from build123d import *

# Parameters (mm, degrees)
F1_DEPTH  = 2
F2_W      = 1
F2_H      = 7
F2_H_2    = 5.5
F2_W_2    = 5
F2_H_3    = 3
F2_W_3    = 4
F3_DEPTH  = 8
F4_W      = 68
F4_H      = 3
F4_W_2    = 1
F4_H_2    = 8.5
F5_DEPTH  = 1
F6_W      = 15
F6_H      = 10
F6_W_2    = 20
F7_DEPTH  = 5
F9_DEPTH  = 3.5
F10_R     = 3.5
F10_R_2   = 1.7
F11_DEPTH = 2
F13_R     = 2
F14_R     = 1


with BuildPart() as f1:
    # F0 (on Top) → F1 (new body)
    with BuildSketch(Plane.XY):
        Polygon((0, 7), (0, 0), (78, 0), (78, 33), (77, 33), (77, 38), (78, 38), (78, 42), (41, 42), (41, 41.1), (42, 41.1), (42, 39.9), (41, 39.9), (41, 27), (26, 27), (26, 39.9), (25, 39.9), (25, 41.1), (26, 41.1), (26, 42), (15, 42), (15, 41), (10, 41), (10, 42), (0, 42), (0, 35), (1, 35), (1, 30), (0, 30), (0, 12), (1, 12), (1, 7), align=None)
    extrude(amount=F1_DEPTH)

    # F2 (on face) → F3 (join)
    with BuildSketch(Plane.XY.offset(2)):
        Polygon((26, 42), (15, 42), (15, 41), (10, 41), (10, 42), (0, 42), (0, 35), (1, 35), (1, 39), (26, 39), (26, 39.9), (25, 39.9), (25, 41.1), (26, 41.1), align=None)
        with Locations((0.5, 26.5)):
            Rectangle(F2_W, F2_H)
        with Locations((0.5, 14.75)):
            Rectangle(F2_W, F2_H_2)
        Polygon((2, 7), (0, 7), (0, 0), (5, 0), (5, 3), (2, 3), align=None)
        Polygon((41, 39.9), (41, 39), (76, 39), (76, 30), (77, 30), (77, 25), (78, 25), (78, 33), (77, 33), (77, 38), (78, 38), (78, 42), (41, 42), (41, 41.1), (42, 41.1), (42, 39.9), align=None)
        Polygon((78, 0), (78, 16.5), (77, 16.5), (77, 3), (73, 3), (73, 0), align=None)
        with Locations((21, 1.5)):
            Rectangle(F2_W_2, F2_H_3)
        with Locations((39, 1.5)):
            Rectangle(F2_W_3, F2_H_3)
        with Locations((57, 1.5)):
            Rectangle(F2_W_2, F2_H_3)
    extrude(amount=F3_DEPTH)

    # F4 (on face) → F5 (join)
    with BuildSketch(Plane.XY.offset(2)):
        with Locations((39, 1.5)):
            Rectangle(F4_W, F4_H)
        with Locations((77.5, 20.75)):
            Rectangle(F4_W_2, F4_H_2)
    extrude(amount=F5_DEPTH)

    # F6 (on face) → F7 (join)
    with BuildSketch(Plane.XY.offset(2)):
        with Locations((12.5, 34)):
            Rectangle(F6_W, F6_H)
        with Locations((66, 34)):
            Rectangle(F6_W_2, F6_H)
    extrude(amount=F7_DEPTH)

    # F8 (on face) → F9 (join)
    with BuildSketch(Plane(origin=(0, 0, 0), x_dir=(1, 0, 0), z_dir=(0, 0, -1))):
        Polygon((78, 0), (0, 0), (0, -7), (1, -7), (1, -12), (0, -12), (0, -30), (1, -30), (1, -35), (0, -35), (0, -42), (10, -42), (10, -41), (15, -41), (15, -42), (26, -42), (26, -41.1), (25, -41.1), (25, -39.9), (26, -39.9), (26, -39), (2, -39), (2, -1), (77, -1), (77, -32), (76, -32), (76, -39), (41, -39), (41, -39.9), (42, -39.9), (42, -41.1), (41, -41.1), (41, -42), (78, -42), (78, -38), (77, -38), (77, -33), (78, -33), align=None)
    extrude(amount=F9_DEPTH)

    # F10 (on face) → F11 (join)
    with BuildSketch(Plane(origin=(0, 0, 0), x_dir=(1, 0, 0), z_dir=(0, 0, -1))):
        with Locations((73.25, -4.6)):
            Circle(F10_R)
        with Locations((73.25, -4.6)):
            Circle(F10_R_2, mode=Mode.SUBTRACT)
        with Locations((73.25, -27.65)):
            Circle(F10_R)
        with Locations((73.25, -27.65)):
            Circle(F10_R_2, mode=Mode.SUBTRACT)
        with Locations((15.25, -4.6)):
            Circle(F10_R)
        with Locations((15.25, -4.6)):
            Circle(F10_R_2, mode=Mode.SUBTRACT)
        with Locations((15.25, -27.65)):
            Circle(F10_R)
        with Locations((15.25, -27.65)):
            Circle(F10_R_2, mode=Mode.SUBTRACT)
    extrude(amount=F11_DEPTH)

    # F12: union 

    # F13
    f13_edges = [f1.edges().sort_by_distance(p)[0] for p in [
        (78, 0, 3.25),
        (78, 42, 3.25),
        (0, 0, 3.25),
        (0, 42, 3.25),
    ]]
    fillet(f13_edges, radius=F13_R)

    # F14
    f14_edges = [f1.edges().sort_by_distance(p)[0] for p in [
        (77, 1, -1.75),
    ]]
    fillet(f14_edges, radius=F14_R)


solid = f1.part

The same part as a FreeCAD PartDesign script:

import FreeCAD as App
import Part
import Sketcher
from FreeCAD import Vector


def edges_at(feature, points):
    """Names of the edges that pass closest to the given points."""
    edges = feature.Shape.Edges
    near = lambda p: min(range(len(edges)), key=lambda i: edges[i].distToShape(Part.Vertex(*p))[0])
    return sorted({f"Edge{near(p) + 1}" for p in points})

doc = App.newDocument("Part")
body = doc.addObject("PartDesign::Body", "Body")

sketch1 = body.newObject("Sketcher::SketchObject", "Sketch")
sketch1.AttachmentSupport = (doc.getObject("XY_Plane"), [""])
sketch1.MapMode = "FlatFace"
sketch1.addGeometry([
    Part.LineSegment(Vector(0, 7, 0), Vector(0, 0, 0)),
    Part.LineSegment(Vector(0, 0, 0), Vector(78, 0, 0)),
    Part.LineSegment(Vector(78, 0, 0), Vector(78, 33, 0)),
    Part.LineSegment(Vector(78, 33, 0), Vector(77, 33, 0)),
    Part.LineSegment(Vector(77, 33, 0), Vector(77, 38, 0)),
    Part.LineSegment(Vector(77, 38, 0), Vector(78, 38, 0)),
    Part.LineSegment(Vector(78, 38, 0), Vector(78, 42, 0)),
    Part.LineSegment(Vector(78, 42, 0), Vector(41, 42, 0)),
    Part.LineSegment(Vector(41, 42, 0), Vector(41, 41.1, 0)),
    Part.LineSegment(Vector(41, 41.1, 0), Vector(42, 41.1, 0)),
    Part.LineSegment(Vector(42, 41.1, 0), Vector(42, 39.9, 0)),
    Part.LineSegment(Vector(42, 39.9, 0), Vector(41, 39.9, 0)),
    Part.LineSegment(Vector(41, 39.9, 0), Vector(41, 27, 0)),
    Part.LineSegment(Vector(41, 27, 0), Vector(26, 27, 0)),
    Part.LineSegment(Vector(26, 27, 0), Vector(26, 39.9, 0)),
    Part.LineSegment(Vector(26, 39.9, 0), Vector(25, 39.9, 0)),
    Part.LineSegment(Vector(25, 39.9, 0), Vector(25, 41.1, 0)),
    Part.LineSegment(Vector(25, 41.1, 0), Vector(26, 41.1, 0)),
    Part.LineSegment(Vector(26, 41.1, 0), Vector(26, 42, 0)),
    Part.LineSegment(Vector(26, 42, 0), Vector(15, 42, 0)),
    Part.LineSegment(Vector(15, 42, 0), Vector(15, 41, 0)),
    Part.LineSegment(Vector(15, 41, 0), Vector(10, 41, 0)),
    Part.LineSegment(Vector(10, 41, 0), Vector(10, 42, 0)),
    Part.LineSegment(Vector(10, 42, 0), Vector(0, 42, 0)),
    Part.LineSegment(Vector(0, 42, 0), Vector(0, 35, 0)),
    Part.LineSegment(Vector(0, 35, 0), Vector(1, 35, 0)),
    Part.LineSegment(Vector(1, 35, 0), Vector(1, 30, 0)),
    Part.LineSegment(Vector(1, 30, 0), Vector(0, 30, 0)),
    Part.LineSegment(Vector(0, 30, 0), Vector(0, 12, 0)),
    Part.LineSegment(Vector(0, 12, 0), Vector(1, 12, 0)),
    Part.LineSegment(Vector(1, 12, 0), Vector(1, 7, 0)),
    Part.LineSegment(Vector(1, 7, 0), Vector(0, 7, 0)),
], False)
sketch1.addConstraint([
    Sketcher.Constraint("Coincident", 0, 2, 1, 1),
    Sketcher.Constraint("Coincident", 1, 2, 2, 1),
    Sketcher.Constraint("Coincident", 2, 2, 3, 1),
    Sketcher.Constraint("Coincident", 3, 2, 4, 1),
    Sketcher.Constraint("Coincident", 4, 2, 5, 1),
    Sketcher.Constraint("Coincident", 5, 2, 6, 1),
    Sketcher.Constraint("Coincident", 6, 2, 7, 1),
    Sketcher.Constraint("Coincident", 7, 2, 8, 1),
    Sketcher.Constraint("Coincident", 8, 2, 9, 1),
    Sketcher.Constraint("Coincident", 9, 2, 10, 1),
    Sketcher.Constraint("Coincident", 10, 2, 11, 1),
    Sketcher.Constraint("Coincident", 11, 2, 12, 1),
    Sketcher.Constraint("Coincident", 12, 2, 13, 1),
    Sketcher.Constraint("Coincident", 13, 2, 14, 1),
    Sketcher.Constraint("Coincident", 14, 2, 15, 1),
    Sketcher.Constraint("Coincident", 15, 2, 16, 1),
    Sketcher.Constraint("Coincident", 16, 2, 17, 1),
    Sketcher.Constraint("Coincident", 17, 2, 18, 1),
    Sketcher.Constraint("Coincident", 18, 2, 19, 1),
    Sketcher.Constraint("Coincident", 19, 2, 20, 1),
    Sketcher.Constraint("Coincident", 20, 2, 21, 1),
    Sketcher.Constraint("Coincident", 21, 2, 22, 1),
    Sketcher.Constraint("Coincident", 22, 2, 23, 1),
    Sketcher.Constraint("Coincident", 23, 2, 24, 1),
    Sketcher.Constraint("Coincident", 24, 2, 25, 1),
    Sketcher.Constraint("Coincident", 25, 2, 26, 1),
    Sketcher.Constraint("Coincident", 26, 2, 27, 1),
    Sketcher.Constraint("Coincident", 27, 2, 28, 1),
    Sketcher.Constraint("Coincident", 28, 2, 29, 1),
    Sketcher.Constraint("Coincident", 29, 2, 30, 1),
    Sketcher.Constraint("Coincident", 30, 2, 31, 1),
    Sketcher.Constraint("Coincident", 31, 2, 0, 1),
    Sketcher.Constraint("Vertical", 0),
    Sketcher.Constraint("Horizontal", 1),
    Sketcher.Constraint("Vertical", 2),
    Sketcher.Constraint("Horizontal", 3),
    Sketcher.Constraint("Vertical", 4),
    Sketcher.Constraint("Horizontal", 5),
    Sketcher.Constraint("Vertical", 6),
    Sketcher.Constraint("Horizontal", 7),
    Sketcher.Constraint("Vertical", 8),
    Sketcher.Constraint("Horizontal", 9),
    Sketcher.Constraint("Vertical", 10),
    Sketcher.Constraint("Horizontal", 11),
    Sketcher.Constraint("Vertical", 12),
    Sketcher.Constraint("Horizontal", 13),
    Sketcher.Constraint("Vertical", 14),
    Sketcher.Constraint("Horizontal", 15),
    Sketcher.Constraint("Vertical", 16),
    Sketcher.Constraint("Horizontal", 17),
    Sketcher.Constraint("Vertical", 18),
    Sketcher.Constraint("Horizontal", 19),
    Sketcher.Constraint("Vertical", 20),
    Sketcher.Constraint("Horizontal", 21),
    Sketcher.Constraint("Vertical", 22),
    Sketcher.Constraint("Horizontal", 23),
    Sketcher.Constraint("Vertical", 24),
    Sketcher.Constraint("Horizontal", 25),
    Sketcher.Constraint("Vertical", 26),
    Sketcher.Constraint("Horizontal", 27),
    Sketcher.Constraint("Vertical", 28),
    Sketcher.Constraint("Horizontal", 29),
    Sketcher.Constraint("Vertical", 30),
    Sketcher.Constraint("Horizontal", 31),
    Sketcher.Constraint("Coincident", 0, 2, -1, 1),
    Sketcher.Constraint("PointOnObject", 23, 2, -2),
    Sketcher.Constraint("PointOnObject", 27, 2, -2),
    Sketcher.Constraint("Horizontal", 11, 2, 14, 2),
    Sketcher.Constraint("Horizontal", 9, 2, 16, 2),
    Sketcher.Constraint("Horizontal", 7, 2, 18, 2),
    Sketcher.Constraint("Horizontal", 19, 2, 22, 2),
    Sketcher.Constraint("Vertical", 2, 2, 5, 2),
    Sketcher.Constraint("Vertical", 8, 2, 11, 2),
    Sketcher.Constraint("Vertical", 14, 2, 17, 2),
    Sketcher.Constraint("Vertical", 26, 2, 29, 2),
    Sketcher.Constraint("Equal", 5, 9),
    Sketcher.Constraint("Equal", 11, 15),
    Sketcher.Constraint("Equal", 17, 25),
    Sketcher.Constraint("Equal", 21, 4),
    Sketcher.Constraint("Equal", 31, 20),
    Sketcher.Constraint("Equal", 0, 24),
    Sketcher.Constraint("Equal", 4, 26),
    Sketcher.Constraint("Equal", 26, 30),
    Sketcher.Constraint("DistanceX", 1, 1, 1, 2, 78.0),
    Sketcher.Constraint("DistanceX", 3, 2, 3, 1, 1.0),
    Sketcher.Constraint("DistanceX", 7, 2, 7, 1, 37.0),
    Sketcher.Constraint("DistanceX", 13, 2, 13, 1, 15.0),
    Sketcher.Constraint("DistanceX", 19, 2, 19, 1, 11.0),
    Sketcher.Constraint("DistanceX", 21, 2, 21, 1, 5.0),
    Sketcher.Constraint("DistanceY", 0, 2, 0, 1, 7.0),
    Sketcher.Constraint("DistanceY", 2, 1, 2, 2, 33.0),
    Sketcher.Constraint("DistanceY", 6, 1, 6, 2, 4.0),
    Sketcher.Constraint("DistanceY", 8, 2, 8, 1, 0.9),
    Sketcher.Constraint("DistanceY", 10, 2, 10, 1, 1.2),
    Sketcher.Constraint("DistanceY", 12, 2, 12, 1, 12.9),
])
pad1 = body.newObject("PartDesign::Pad", "Pad")
pad1.Profile = sketch1
pad1.Length = 2

sketch2 = body.newObject("Sketcher::SketchObject", "Sketch001")
sketch2.AttachmentSupport = (doc.getObject("XY_Plane"), [""])
sketch2.MapMode = "FlatFace"
sketch2.AttachmentOffset = App.Placement(Vector(0, 0, 2), App.Rotation())
sketch2.addGeometry([
    Part.LineSegment(Vector(26, 42, 0), Vector(15, 42, 0)),
    Part.LineSegment(Vector(15, 42, 0), Vector(15, 41, 0)),
    Part.LineSegment(Vector(15, 41, 0), Vector(10, 41, 0)),
    Part.LineSegment(Vector(10, 41, 0), Vector(10, 42, 0)),
    Part.LineSegment(Vector(10, 42, 0), Vector(0, 42, 0)),
    Part.LineSegment(Vector(0, 42, 0), Vector(0, 35, 0)),
    Part.LineSegment(Vector(0, 35, 0), Vector(1, 35, 0)),
    Part.LineSegment(Vector(1, 35, 0), Vector(1, 39, 0)),
    Part.LineSegment(Vector(1, 39, 0), Vector(26, 39, 0)),
    Part.LineSegment(Vector(26, 39, 0), Vector(26, 39.9, 0)),
    Part.LineSegment(Vector(26, 39.9, 0), Vector(25, 39.9, 0)),
    Part.LineSegment(Vector(25, 39.9, 0), Vector(25, 41.1, 0)),
    Part.LineSegment(Vector(25, 41.1, 0), Vector(26, 41.1, 0)),
    Part.LineSegment(Vector(26, 41.1, 0), Vector(26, 42, 0)),
    Part.LineSegment(Vector(0, 30, 0), Vector(0, 23, 0)),
    Part.LineSegment(Vector(0, 23, 0), Vector(1, 23, 0)),
    Part.LineSegment(Vector(1, 23, 0), Vector(1, 30, 0)),
    Part.LineSegment(Vector(1, 30, 0), Vector(0, 30, 0)),
    Part.LineSegment(Vector(0, 17.5, 0), Vector(0, 12, 0)),
    Part.LineSegment(Vector(0, 12, 0), Vector(1, 12, 0)),
    Part.LineSegment(Vector(1, 12, 0), Vector(1, 17.5, 0)),
    Part.LineSegment(Vector(1, 17.5, 0), Vector(0, 17.5, 0)),
    Part.LineSegment(Vector(2, 7, 0), Vector(0, 7, 0)),
    Part.LineSegment(Vector(0, 7, 0), Vector(0, 0, 0)),
    Part.LineSegment(Vector(0, 0, 0), Vector(5, 0, 0)),
    Part.LineSegment(Vector(5, 0, 0), Vector(5, 3, 0)),
    Part.LineSegment(Vector(5, 3, 0), Vector(2, 3, 0)),
    Part.LineSegment(Vector(2, 3, 0), Vector(2, 7, 0)),
    Part.LineSegment(Vector(41, 39.9, 0), Vector(41, 39, 0)),
    Part.LineSegment(Vector(41, 39, 0), Vector(76, 39, 0)),
    Part.LineSegment(Vector(76, 39, 0), Vector(76, 30, 0)),
    Part.LineSegment(Vector(76, 30, 0), Vector(77, 30, 0)),
    Part.LineSegment(Vector(77, 30, 0), Vector(77, 25, 0)),
    Part.LineSegment(Vector(77, 25, 0), Vector(78, 25, 0)),
    Part.LineSegment(Vector(78, 25, 0), Vector(78, 33, 0)),
    Part.LineSegment(Vector(78, 33, 0), Vector(77, 33, 0)),
    Part.LineSegment(Vector(77, 33, 0), Vector(77, 38, 0)),
    Part.LineSegment(Vector(77, 38, 0), Vector(78, 38, 0)),
    Part.LineSegment(Vector(78, 38, 0), Vector(78, 42, 0)),
    Part.LineSegment(Vector(78, 42, 0), Vector(41, 42, 0)),
    Part.LineSegment(Vector(41, 42, 0), Vector(41, 41.1, 0)),
    Part.LineSegment(Vector(41, 41.1, 0), Vector(42, 41.1, 0)),
    Part.LineSegment(Vector(42, 41.1, 0), Vector(42, 39.9, 0)),
    Part.LineSegment(Vector(42, 39.9, 0), Vector(41, 39.9, 0)),
    Part.LineSegment(Vector(78, 0, 0), Vector(78, 16.5, 0)),
    Part.LineSegment(Vector(78, 16.5, 0), Vector(77, 16.5, 0)),
    Part.LineSegment(Vector(77, 16.5, 0), Vector(77, 3, 0)),
    Part.LineSegment(Vector(77, 3, 0), Vector(73, 3, 0)),
    Part.LineSegment(Vector(73, 3, 0), Vector(73, 0, 0)),
    Part.LineSegment(Vector(73, 0, 0), Vector(78, 0, 0)),
    Part.LineSegment(Vector(18.5, 3, 0), Vector(18.5, 0, 0)),
    Part.LineSegment(Vector(18.5, 0, 0), Vector(23.5, 0, 0)),
    Part.LineSegment(Vector(23.5, 0, 0), Vector(23.5, 3, 0)),
    Part.LineSegment(Vector(23.5, 3, 0), Vector(18.5, 3, 0)),
    Part.LineSegment(Vector(37, 3, 0), Vector(37, 0, 0)),
    Part.LineSegment(Vector(37, 0, 0), Vector(41, 0, 0)),
    Part.LineSegment(Vector(41, 0, 0), Vector(41, 3, 0)),
    Part.LineSegment(Vector(41, 3, 0), Vector(37, 3, 0)),
    Part.LineSegment(Vector(54.5, 3, 0), Vector(54.5, 0, 0)),
    Part.LineSegment(Vector(54.5, 0, 0), Vector(59.5, 0, 0)),
    Part.LineSegment(Vector(59.5, 0, 0), Vector(59.5, 3, 0)),
    Part.LineSegment(Vector(59.5, 3, 0), Vector(54.5, 3, 0)),
], False)
sketch2.addConstraint([
    Sketcher.Constraint("Coincident", 0, 2, 1, 1),
    Sketcher.Constraint("Coincident", 1, 2, 2, 1),
    Sketcher.Constraint("Coincident", 2, 2, 3, 1),
    Sketcher.Constraint("Coincident", 3, 2, 4, 1),
    Sketcher.Constraint("Coincident", 4, 2, 5, 1),
    Sketcher.Constraint("Coincident", 5, 2, 6, 1),
    Sketcher.Constraint("Coincident", 6, 2, 7, 1),
    Sketcher.Constraint("Coincident", 7, 2, 8, 1),
    Sketcher.Constraint("Coincident", 8, 2, 9, 1),
    Sketcher.Constraint("Coincident", 9, 2, 10, 1),
    Sketcher.Constraint("Coincident", 10, 2, 11, 1),
    Sketcher.Constraint("Coincident", 11, 2, 12, 1),
    Sketcher.Constraint("Coincident", 12, 2, 13, 1),
    Sketcher.Constraint("Coincident", 13, 2, 0, 1),
    Sketcher.Constraint("Coincident", 14, 2, 15, 1),
    Sketcher.Constraint("Coincident", 15, 2, 16, 1),
    Sketcher.Constraint("Coincident", 16, 2, 17, 1),
    Sketcher.Constraint("Coincident", 17, 2, 14, 1),
    Sketcher.Constraint("Coincident", 18, 2, 19, 1),
    Sketcher.Constraint("Coincident", 19, 2, 20, 1),
    Sketcher.Constraint("Coincident", 20, 2, 21, 1),
    Sketcher.Constraint("Coincident", 21, 2, 18, 1),
    Sketcher.Constraint("Coincident", 22, 2, 23, 1),
    Sketcher.Constraint("Coincident", 23, 2, 24, 1),
    Sketcher.Constraint("Coincident", 24, 2, 25, 1),
    Sketcher.Constraint("Coincident", 25, 2, 26, 1),
    Sketcher.Constraint("Coincident", 26, 2, 27, 1),
    Sketcher.Constraint("Coincident", 27, 2, 22, 1),
    Sketcher.Constraint("Coincident", 28, 2, 29, 1),
    Sketcher.Constraint("Coincident", 29, 2, 30, 1),
    Sketcher.Constraint("Coincident", 30, 2, 31, 1),
    Sketcher.Constraint("Coincident", 31, 2, 32, 1),
    Sketcher.Constraint("Coincident", 32, 2, 33, 1),
    Sketcher.Constraint("Coincident", 33, 2, 34, 1),
    Sketcher.Constraint("Coincident", 34, 2, 35, 1),
    Sketcher.Constraint("Coincident", 35, 2, 36, 1),
    Sketcher.Constraint("Coincident", 36, 2, 37, 1),
    Sketcher.Constraint("Coincident", 37, 2, 38, 1),
    Sketcher.Constraint("Coincident", 38, 2, 39, 1),
    Sketcher.Constraint("Coincident", 39, 2, 40, 1),
    Sketcher.Constraint("Coincident", 40, 2, 41, 1),
    Sketcher.Constraint("Coincident", 41, 2, 42, 1),
    Sketcher.Constraint("Coincident", 42, 2, 43, 1),
    Sketcher.Constraint("Coincident", 43, 2, 28, 1),
    Sketcher.Constraint("Coincident", 44, 2, 45, 1),
    Sketcher.Constraint("Coincident", 45, 2, 46, 1),
    Sketcher.Constraint("Coincident", 46, 2, 47, 1),
    Sketcher.Constraint("Coincident", 47, 2, 48, 1),
    Sketcher.Constraint("Coincident", 48, 2, 49, 1),
    Sketcher.Constraint("Coincident", 49, 2, 44, 1),
    Sketcher.Constraint("Coincident", 50, 2, 51, 1),
    Sketcher.Constraint("Coincident", 51, 2, 52, 1),
    Sketcher.Constraint("Coincident", 52, 2, 53, 1),
    Sketcher.Constraint("Coincident", 53, 2, 50, 1),
    Sketcher.Constraint("Coincident", 54, 2, 55, 1),
    Sketcher.Constraint("Coincident", 55, 2, 56, 1),
    Sketcher.Constraint("Coincident", 56, 2, 57, 1),
    Sketcher.Constraint("Coincident", 57, 2, 54, 1),
    Sketcher.Constraint("Coincident", 58, 2, 59, 1),
    Sketcher.Constraint("Coincident", 59, 2, 60, 1),
    Sketcher.Constraint("Coincident", 60, 2, 61, 1),
    Sketcher.Constraint("Coincident", 61, 2, 58, 1),
    Sketcher.Constraint("Horizontal", 0),
    Sketcher.Constraint("Vertical", 1),
    Sketcher.Constraint("Horizontal", 2),
    Sketcher.Constraint("Vertical", 3),
    Sketcher.Constraint("Horizontal", 4),
    Sketcher.Constraint("Vertical", 5),
    Sketcher.Constraint("Horizontal", 6),
    Sketcher.Constraint("Vertical", 7),
    Sketcher.Constraint("Horizontal", 8),
    Sketcher.Constraint("Vertical", 9),
    Sketcher.Constraint("Horizontal", 10),
    Sketcher.Constraint("Vertical", 11),
    Sketcher.Constraint("Horizontal", 12),
    Sketcher.Constraint("Vertical", 13),
    Sketcher.Constraint("Vertical", 14),
    Sketcher.Constraint("Horizontal", 15),
    Sketcher.Constraint("Vertical", 16),
    Sketcher.Constraint("Horizontal", 17),
    Sketcher.Constraint("Vertical", 18),
    Sketcher.Constraint("Horizontal", 19),
    Sketcher.Constraint("Vertical", 20),
    Sketcher.Constraint("Horizontal", 21),
    Sketcher.Constraint("Horizontal", 22),
    Sketcher.Constraint("Vertical", 23),
    Sketcher.Constraint("Horizontal", 24),
    Sketcher.Constraint("Vertical", 25),
    Sketcher.Constraint("Horizontal", 26),
    Sketcher.Constraint("Vertical", 27),
    Sketcher.Constraint("Vertical", 28),
    Sketcher.Constraint("Horizontal", 29),
    Sketcher.Constraint("Vertical", 30),
    Sketcher.Constraint("Horizontal", 31),
    Sketcher.Constraint("Vertical", 32),
    Sketcher.Constraint("Horizontal", 33),
    Sketcher.Constraint("Vertical", 34),
    Sketcher.Constraint("Horizontal", 35),
    Sketcher.Constraint("Vertical", 36),
    Sketcher.Constraint("Horizontal", 37),
    Sketcher.Constraint("Vertical", 38),
    Sketcher.Constraint("Horizontal", 39),
    Sketcher.Constraint("Vertical", 40),
    Sketcher.Constraint("Horizontal", 41),
    Sketcher.Constraint("Vertical", 42),
    Sketcher.Constraint("Horizontal", 43),
    Sketcher.Constraint("Vertical", 44),
    Sketcher.Constraint("Horizontal", 45),
    Sketcher.Constraint("Vertical", 46),
    Sketcher.Constraint("Horizontal", 47),
    Sketcher.Constraint("Vertical", 48),
    Sketcher.Constraint("Horizontal", 49),
    Sketcher.Constraint("Vertical", 50),
    Sketcher.Constraint("Horizontal", 51),
    Sketcher.Constraint("Vertical", 52),
    Sketcher.Constraint("Horizontal", 53),
    Sketcher.Constraint("Vertical", 54),
    Sketcher.Constraint("Horizontal", 55),
    Sketcher.Constraint("Vertical", 56),
    Sketcher.Constraint("Horizontal", 57),
    Sketcher.Constraint("Vertical", 58),
    Sketcher.Constraint("Horizontal", 59),
    Sketcher.Constraint("Vertical", 60),
    Sketcher.Constraint("Horizontal", 61),
    Sketcher.Constraint("Coincident", 23, 2, -1, 1),
    Sketcher.Constraint("PointOnObject", 4, 2, -2),
    Sketcher.Constraint("PointOnObject", 14, 2, -2),
    Sketcher.Constraint("PointOnObject", 18, 2, -2),
    Sketcher.Constraint("PointOnObject", 48, 2, -1),
    Sketcher.Constraint("PointOnObject", 50, 2, -1),
    Sketcher.Constraint("PointOnObject", 54, 2, -1),
    Sketcher.Constraint("PointOnObject", 58, 2, -1),
    Sketcher.Constraint("Horizontal", 0, 2, 3, 2),
    Sketcher.Constraint("Horizontal", 8, 2, 28, 2),
    Sketcher.Constraint("Horizontal", 17, 2, 30, 2),
    Sketcher.Constraint("Horizontal", 13, 2, 38, 2),
    Sketcher.Constraint("Horizontal", 12, 2, 40, 2),
    Sketcher.Constraint("Horizontal", 10, 2, 42, 2),
    Sketcher.Constraint("Horizontal", 26, 2, 46, 2),
    Sketcher.Constraint("Horizontal", 47, 2, 52, 2),
    Sketcher.Constraint("Horizontal", 53, 2, 56, 2),
    Sketcher.Constraint("Horizontal", 57, 2, 60, 2),
    Sketcher.Constraint("Vertical", 9, 2, 12, 2),
    Sketcher.Constraint("Vertical", 7, 2, 15, 2),
    Sketcher.Constraint("Vertical", 16, 2, 19, 2),
    Sketcher.Constraint("Vertical", 32, 2, 35, 2),
    Sketcher.Constraint("Vertical", 34, 2, 37, 2),
    Sketcher.Constraint("Vertical", 28, 2, 39, 2),
    Sketcher.Constraint("Vertical", 38, 2, 44, 2),
    Sketcher.Constraint("Vertical", 36, 2, 45, 2),
    Sketcher.Constraint("Vertical", 43, 2, 55, 2),
    Sketcher.Constraint("Equal", 6, 10),
    Sketcher.Constraint("Equal", 2, 24),
    Sketcher.Constraint("Equal", 21, 31),
    Sketcher.Constraint("Equal", 31, 33),
    Sketcher.Constraint("Equal", 37, 41),
    Sketcher.Constraint("Equal", 24, 49),
    Sketcher.Constraint("Equal", 49, 51),
    Sketcher.Constraint("Equal", 47, 55),
    Sketcher.Constraint("Equal", 53, 59),
    Sketcher.Constraint("Equal", 45, 1),
    Sketcher.Constraint("Equal", 57, 7),
    Sketcher.Constraint("Equal", 9, 13),
    Sketcher.Constraint("Equal", 5, 14),
    Sketcher.Constraint("Equal", 16, 23),
    Sketcher.Constraint("Equal", 26, 25),
    Sketcher.Constraint("Equal", 7, 27),
    Sketcher.Constraint("Equal", 61, 32),
    Sketcher.Constraint("Equal", 32, 36),
    Sketcher.Constraint("Equal", 27, 38),
    Sketcher.Constraint("DistanceX", 0, 2, 0, 1, 11.0),
    Sketcher.Constraint("DistanceX", 2, 2, 2, 1, 5.0),
    Sketcher.Constraint("DistanceX", 4, 2, 4, 1, 10.0),
    Sketcher.Constraint("DistanceX", 6, 1, 6, 2, 1.0),
    Sketcher.Constraint("DistanceX", 22, 2, 22, 1, 2.0),
    Sketcher.Constraint("DistanceX", 29, 1, 29, 2, 35.0),
    Sketcher.Constraint("DistanceY", 30, 2, 30, 1, 9.0),
    Sketcher.Constraint("DistanceY", 9, 1, 9, 2, 0.9),
    Sketcher.Constraint("DistanceY", 18, 2, 18, 1, 5.5),
    Sketcher.Constraint("DistanceY", 44, 1, 44, 2, 16.5),
    Sketcher.Constraint("DistanceY", -1, 1, 0, 2, 42.0),
    Sketcher.Constraint("DistanceY", -1, 1, 18, 2, 12.0),
    Sketcher.Constraint("DistanceX", -1, 1, 28, 2, 41.0),
    Sketcher.Constraint("DistanceX", -1, 1, 50, 2, 18.5),
    Sketcher.Constraint("DistanceX", -1, 1, 58, 2, 54.5),
])
pad2 = body.newObject("PartDesign::Pad", "Pad001")
pad2.Profile = sketch2
pad2.Length = 8

sketch3 = body.newObject("Sketcher::SketchObject", "Sketch002")
sketch3.AttachmentSupport = (doc.getObject("XY_Plane"), [""])
sketch3.MapMode = "FlatFace"
sketch3.AttachmentOffset = App.Placement(Vector(0, 0, 2), App.Rotation())
sketch3.addGeometry([
    Part.LineSegment(Vector(5, 3, 0), Vector(5, 0, 0)),
    Part.LineSegment(Vector(5, 0, 0), Vector(73, 0, 0)),
    Part.LineSegment(Vector(73, 0, 0), Vector(73, 3, 0)),
    Part.LineSegment(Vector(73, 3, 0), Vector(5, 3, 0)),
    Part.LineSegment(Vector(77, 25, 0), Vector(77, 16.5, 0)),
    Part.LineSegment(Vector(77, 16.5, 0), Vector(78, 16.5, 0)),
    Part.LineSegment(Vector(78, 16.5, 0), Vector(78, 25, 0)),
    Part.LineSegment(Vector(78, 25, 0), Vector(77, 25, 0)),
], False)
sketch3.addConstraint([
    Sketcher.Constraint("Coincident", 0, 2, 1, 1),
    Sketcher.Constraint("Coincident", 1, 2, 2, 1),
    Sketcher.Constraint("Coincident", 2, 2, 3, 1),
    Sketcher.Constraint("Coincident", 3, 2, 0, 1),
    Sketcher.Constraint("Coincident", 4, 2, 5, 1),
    Sketcher.Constraint("Coincident", 5, 2, 6, 1),
    Sketcher.Constraint("Coincident", 6, 2, 7, 1),
    Sketcher.Constraint("Coincident", 7, 2, 4, 1),
    Sketcher.Constraint("Vertical", 0),
    Sketcher.Constraint("Horizontal", 1),
    Sketcher.Constraint("Vertical", 2),
    Sketcher.Constraint("Horizontal", 3),
    Sketcher.Constraint("Vertical", 4),
    Sketcher.Constraint("Horizontal", 5),
    Sketcher.Constraint("Vertical", 6),
    Sketcher.Constraint("Horizontal", 7),
    Sketcher.Constraint("PointOnObject", 0, 2, -1),
    Sketcher.Constraint("DistanceX", 1, 1, 1, 2, 68.0),
    Sketcher.Constraint("DistanceX", 5, 1, 5, 2, 1.0),
    Sketcher.Constraint("DistanceY", 0, 2, 0, 1, 3.0),
    Sketcher.Constraint("DistanceY", 4, 2, 4, 1, 8.5),
    Sketcher.Constraint("DistanceX", -1, 1, 0, 2, 5.0),
    Sketcher.Constraint("DistanceX", -1, 1, 4, 2, 77.0),
    Sketcher.Constraint("DistanceY", -1, 1, 6, 2, 25.0),
])
pad3 = body.newObject("PartDesign::Pad", "Pad002")
pad3.Profile = sketch3
pad3.Length = 1

sketch4 = body.newObject("Sketcher::SketchObject", "Sketch003")
sketch4.AttachmentSupport = (doc.getObject("XY_Plane"), [""])
sketch4.MapMode = "FlatFace"
sketch4.AttachmentOffset = App.Placement(Vector(0, 0, 2), App.Rotation())
sketch4.addGeometry([
    Part.LineSegment(Vector(5, 39, 0), Vector(5, 29, 0)),
    Part.LineSegment(Vector(5, 29, 0), Vector(20, 29, 0)),
    Part.LineSegment(Vector(20, 29, 0), Vector(20, 39, 0)),
    Part.LineSegment(Vector(20, 39, 0), Vector(5, 39, 0)),
    Part.LineSegment(Vector(56, 39, 0), Vector(56, 29, 0)),
    Part.LineSegment(Vector(56, 29, 0), Vector(76, 29, 0)),
    Part.LineSegment(Vector(76, 29, 0), Vector(76, 39, 0)),
    Part.LineSegment(Vector(76, 39, 0), Vector(56, 39, 0)),
], False)
sketch4.addConstraint([
    Sketcher.Constraint("Coincident", 0, 2, 1, 1),
    Sketcher.Constraint("Coincident", 1, 2, 2, 1),
    Sketcher.Constraint("Coincident", 2, 2, 3, 1),
    Sketcher.Constraint("Coincident", 3, 2, 0, 1),
    Sketcher.Constraint("Coincident", 4, 2, 5, 1),
    Sketcher.Constraint("Coincident", 5, 2, 6, 1),
    Sketcher.Constraint("Coincident", 6, 2, 7, 1),
    Sketcher.Constraint("Coincident", 7, 2, 4, 1),
    Sketcher.Constraint("Vertical", 0),
    Sketcher.Constraint("Horizontal", 1),
    Sketcher.Constraint("Vertical", 2),
    Sketcher.Constraint("Horizontal", 3),
    Sketcher.Constraint("Vertical", 4),
    Sketcher.Constraint("Horizontal", 5),
    Sketcher.Constraint("Vertical", 6),
    Sketcher.Constraint("Horizontal", 7),
    Sketcher.Constraint("Horizontal", 1, 2, 4, 2),
    Sketcher.Constraint("Horizontal", 3, 2, 6, 2),
    Sketcher.Constraint("DistanceX", 1, 1, 1, 2, 15.0),
    Sketcher.Constraint("DistanceX", 5, 1, 5, 2, 20.0),
    Sketcher.Constraint("DistanceY", 0, 2, 0, 1, 10.0),
    Sketcher.Constraint("DistanceX", -1, 1, 0, 2, 5.0),
    Sketcher.Constraint("DistanceY", -1, 1, 0, 2, 29.0),
    Sketcher.Constraint("DistanceX", -1, 1, 4, 2, 56.0),
])
pad4 = body.newObject("PartDesign::Pad", "Pad003")
pad4.Profile = sketch4
pad4.Length = 5

sketch5 = body.newObject("Sketcher::SketchObject", "Sketch004")
sketch5.AttachmentSupport = (doc.getObject("XY_Plane"), [""])
sketch5.MapMode = "FlatFace"
sketch5.addGeometry([
    Part.LineSegment(Vector(78, 0, 0), Vector(0, 0, 0)),
    Part.LineSegment(Vector(0, 0, 0), Vector(0, 7, 0)),
    Part.LineSegment(Vector(0, 7, 0), Vector(1, 7, 0)),
    Part.LineSegment(Vector(1, 7, 0), Vector(1, 12, 0)),
    Part.LineSegment(Vector(1, 12, 0), Vector(0, 12, 0)),
    Part.LineSegment(Vector(0, 12, 0), Vector(0, 30, 0)),
    Part.LineSegment(Vector(0, 30, 0), Vector(1, 30, 0)),
    Part.LineSegment(Vector(1, 30, 0), Vector(1, 35, 0)),
    Part.LineSegment(Vector(1, 35, 0), Vector(0, 35, 0)),
    Part.LineSegment(Vector(0, 35, 0), Vector(0, 42, 0)),
    Part.LineSegment(Vector(0, 42, 0), Vector(10, 42, 0)),
    Part.LineSegment(Vector(10, 42, 0), Vector(10, 41, 0)),
    Part.LineSegment(Vector(10, 41, 0), Vector(15, 41, 0)),
    Part.LineSegment(Vector(15, 41, 0), Vector(15, 42, 0)),
    Part.LineSegment(Vector(15, 42, 0), Vector(26, 42, 0)),
    Part.LineSegment(Vector(26, 42, 0), Vector(26, 41.1, 0)),
    Part.LineSegment(Vector(26, 41.1, 0), Vector(25, 41.1, 0)),
    Part.LineSegment(Vector(25, 41.1, 0), Vector(25, 39.9, 0)),
    Part.LineSegment(Vector(25, 39.9, 0), Vector(26, 39.9, 0)),
    Part.LineSegment(Vector(26, 39.9, 0), Vector(26, 39, 0)),
    Part.LineSegment(Vector(26, 39, 0), Vector(2, 39, 0)),
    Part.LineSegment(Vector(2, 39, 0), Vector(2, 1, 0)),
    Part.LineSegment(Vector(2, 1, 0), Vector(77, 1, 0)),
    Part.LineSegment(Vector(77, 1, 0), Vector(77, 32, 0)),
    Part.LineSegment(Vector(77, 32, 0), Vector(76, 32, 0)),
    Part.LineSegment(Vector(76, 32, 0), Vector(76, 39, 0)),
    Part.LineSegment(Vector(76, 39, 0), Vector(41, 39, 0)),
    Part.LineSegment(Vector(41, 39, 0), Vector(41, 39.9, 0)),
    Part.LineSegment(Vector(41, 39.9, 0), Vector(42, 39.9, 0)),
    Part.LineSegment(Vector(42, 39.9, 0), Vector(42, 41.1, 0)),
    Part.LineSegment(Vector(42, 41.1, 0), Vector(41, 41.1, 0)),
    Part.LineSegment(Vector(41, 41.1, 0), Vector(41, 42, 0)),
    Part.LineSegment(Vector(41, 42, 0), Vector(78, 42, 0)),
    Part.LineSegment(Vector(78, 42, 0), Vector(78, 38, 0)),
    Part.LineSegment(Vector(78, 38, 0), Vector(77, 38, 0)),
    Part.LineSegment(Vector(77, 38, 0), Vector(77, 33, 0)),
    Part.LineSegment(Vector(77, 33, 0), Vector(78, 33, 0)),
    Part.LineSegment(Vector(78, 33, 0), Vector(78, 0, 0)),
], False)
sketch5.addConstraint([
    Sketcher.Constraint("Coincident", 0, 2, 1, 1),
    Sketcher.Constraint("Coincident", 1, 2, 2, 1),
    Sketcher.Constraint("Coincident", 2, 2, 3, 1),
    Sketcher.Constraint("Coincident", 3, 2, 4, 1),
    Sketcher.Constraint("Coincident", 4, 2, 5, 1),
    Sketcher.Constraint("Coincident", 5, 2, 6, 1),
    Sketcher.Constraint("Coincident", 6, 2, 7, 1),
    Sketcher.Constraint("Coincident", 7, 2, 8, 1),
    Sketcher.Constraint("Coincident", 8, 2, 9, 1),
    Sketcher.Constraint("Coincident", 9, 2, 10, 1),
    Sketcher.Constraint("Coincident", 10, 2, 11, 1),
    Sketcher.Constraint("Coincident", 11, 2, 12, 1),
    Sketcher.Constraint("Coincident", 12, 2, 13, 1),
    Sketcher.Constraint("Coincident", 13, 2, 14, 1),
    Sketcher.Constraint("Coincident", 14, 2, 15, 1),
    Sketcher.Constraint("Coincident", 15, 2, 16, 1),
    Sketcher.Constraint("Coincident", 16, 2, 17, 1),
    Sketcher.Constraint("Coincident", 17, 2, 18, 1),
    Sketcher.Constraint("Coincident", 18, 2, 19, 1),
    Sketcher.Constraint("Coincident", 19, 2, 20, 1),
    Sketcher.Constraint("Coincident", 20, 2, 21, 1),
    Sketcher.Constraint("Coincident", 21, 2, 22, 1),
    Sketcher.Constraint("Coincident", 22, 2, 23, 1),
    Sketcher.Constraint("Coincident", 23, 2, 24, 1),
    Sketcher.Constraint("Coincident", 24, 2, 25, 1),
    Sketcher.Constraint("Coincident", 25, 2, 26, 1),
    Sketcher.Constraint("Coincident", 26, 2, 27, 1),
    Sketcher.Constraint("Coincident", 27, 2, 28, 1),
    Sketcher.Constraint("Coincident", 28, 2, 29, 1),
    Sketcher.Constraint("Coincident", 29, 2, 30, 1),
    Sketcher.Constraint("Coincident", 30, 2, 31, 1),
    Sketcher.Constraint("Coincident", 31, 2, 32, 1),
    Sketcher.Constraint("Coincident", 32, 2, 33, 1),
    Sketcher.Constraint("Coincident", 33, 2, 34, 1),
    Sketcher.Constraint("Coincident", 34, 2, 35, 1),
    Sketcher.Constraint("Coincident", 35, 2, 36, 1),
    Sketcher.Constraint("Coincident", 36, 2, 37, 1),
    Sketcher.Constraint("Coincident", 37, 2, 0, 1),
    Sketcher.Constraint("Horizontal", 0),
    Sketcher.Constraint("Vertical", 1),
    Sketcher.Constraint("Horizontal", 2),
    Sketcher.Constraint("Vertical", 3),
    Sketcher.Constraint("Horizontal", 4),
    Sketcher.Constraint("Vertical", 5),
    Sketcher.Constraint("Horizontal", 6),
    Sketcher.Constraint("Vertical", 7),
    Sketcher.Constraint("Horizontal", 8),
    Sketcher.Constraint("Vertical", 9),
    Sketcher.Constraint("Horizontal", 10),
    Sketcher.Constraint("Vertical", 11),
    Sketcher.Constraint("Horizontal", 12),
    Sketcher.Constraint("Vertical", 13),
    Sketcher.Constraint("Horizontal", 14),
    Sketcher.Constraint("Vertical", 15),
    Sketcher.Constraint("Horizontal", 16),
    Sketcher.Constraint("Vertical", 17),
    Sketcher.Constraint("Horizontal", 18),
    Sketcher.Constraint("Vertical", 19),
    Sketcher.Constraint("Horizontal", 20),
    Sketcher.Constraint("Vertical", 21),
    Sketcher.Constraint("Horizontal", 22),
    Sketcher.Constraint("Vertical", 23),
    Sketcher.Constraint("Horizontal", 24),
    Sketcher.Constraint("Vertical", 25),
    Sketcher.Constraint("Horizontal", 26),
    Sketcher.Constraint("Vertical", 27),
    Sketcher.Constraint("Horizontal", 28),
    Sketcher.Constraint("Vertical", 29),
    Sketcher.Constraint("Horizontal", 30),
    Sketcher.Constraint("Vertical", 31),
    Sketcher.Constraint("Horizontal", 32),
    Sketcher.Constraint("Vertical", 33),
    Sketcher.Constraint("Horizontal", 34),
    Sketcher.Constraint("Vertical", 35),
    Sketcher.Constraint("Horizontal", 36),
    Sketcher.Constraint("Vertical", 37),
    Sketcher.Constraint("Coincident", 0, 2, -1, 1),
    Sketcher.Constraint("PointOnObject", 4, 2, -2),
    Sketcher.Constraint("PointOnObject", 8, 2, -2),
    Sketcher.Constraint("Horizontal", 10, 2, 13, 2),
    Sketcher.Constraint("Horizontal", 20, 2, 25, 2),
    Sketcher.Constraint("Horizontal", 18, 2, 27, 2),
    Sketcher.Constraint("Horizontal", 16, 2, 29, 2),
    Sketcher.Constraint("Horizontal", 14, 2, 31, 2),
    Sketcher.Constraint("Vertical", 3, 2, 6, 2),
    Sketcher.Constraint("Vertical", 15, 2, 18, 2),
    Sketcher.Constraint("Vertical", 27, 2, 30, 2),
    Sketcher.Constraint("Vertical", 23, 2, 34, 2),
    Sketcher.Constraint("Vertical", 33, 2, 36, 2),
    Sketcher.Constraint("Equal", 8, 16),
    Sketcher.Constraint("Equal", 18, 24),
    Sketcher.Constraint("Equal", 24, 28),
    Sketcher.Constraint("Equal", 30, 34),
    Sketcher.Constraint("Equal", 12, 3),
    Sketcher.Constraint("Equal", 3, 7),
    Sketcher.Constraint("Equal", 1, 9),
    Sketcher.Constraint("Equal", 36, 11),
    Sketcher.Constraint("Equal", 15, 19),
    Sketcher.Constraint("Equal", 9, 25),
    Sketcher.Constraint("Equal", 7, 35),
    Sketcher.Constraint("DistanceX", 0, 2, 0, 1, 78.0),
    Sketcher.Constraint("DistanceX", 2, 1, 2, 2, 1.0),
    Sketcher.Constraint("DistanceX", 10, 1, 10, 2, 10.0),
    Sketcher.Constraint("DistanceX", 12, 1, 12, 2, 5.0),
    Sketcher.Constraint("DistanceX", 14, 1, 14, 2, 11.0),
    Sketcher.Constraint("DistanceX", 20, 2, 20, 1, 24.0),
    Sketcher.Constraint("DistanceX", 26, 2, 26, 1, 35.0),
    Sketcher.Constraint("DistanceY", 1, 1, 1, 2, 7.0),
    Sketcher.Constraint("DistanceY", 5, 1, 5, 2, 18.0),
    Sketcher.Constraint("DistanceY", 21, 2, 21, 1, 38.0),
    Sketcher.Constraint("DistanceY", 33, 2, 33, 1, 4.0),
    Sketcher.Constraint("DistanceY", 15, 2, 15, 1, 0.9),
    Sketcher.Constraint("DistanceY", 17, 2, 17, 1, 1.2),
])
pad5 = body.newObject("PartDesign::Pad", "Pad004")
pad5.Profile = sketch5
pad5.Length = 3.5
pad5.Reversed = True

sketch6 = body.newObject("Sketcher::SketchObject", "Sketch005")
sketch6.AttachmentSupport = (doc.getObject("XY_Plane"), [""])
sketch6.MapMode = "FlatFace"
sketch6.addGeometry([
    Part.Circle(Vector(73.25, 4.6, 0), Vector(0, 0, 1), 3.5),
    Part.Circle(Vector(73.25, 4.6, 0), Vector(0, 0, 1), 1.7),
    Part.Circle(Vector(73.25, 27.65, 0), Vector(0, 0, 1), 3.5),
    Part.Circle(Vector(73.25, 27.65, 0), Vector(0, 0, 1), 1.7),
    Part.Circle(Vector(15.25, 4.6, 0), Vector(0, 0, 1), 3.5),
    Part.Circle(Vector(15.25, 4.6, 0), Vector(0, 0, 1), 1.7),
    Part.Circle(Vector(15.25, 27.65, 0), Vector(0, 0, 1), 3.5),
    Part.Circle(Vector(15.25, 27.65, 0), Vector(0, 0, 1), 1.7),
], False)
sketch6.addConstraint([
    Sketcher.Constraint("Coincident", 1, 3, 0, 3),
    Sketcher.Constraint("Coincident", 3, 3, 2, 3),
    Sketcher.Constraint("Coincident", 5, 3, 4, 3),
    Sketcher.Constraint("Coincident", 7, 3, 6, 3),
    Sketcher.Constraint("Equal", 0, 2),
    Sketcher.Constraint("Equal", 1, 3),
    Sketcher.Constraint("Equal", 2, 4),
    Sketcher.Constraint("Equal", 3, 5),
    Sketcher.Constraint("Equal", 4, 6),
    Sketcher.Constraint("Equal", 5, 7),
    Sketcher.Constraint("Horizontal", 1, 3, 4, 3),
    Sketcher.Constraint("Horizontal", 3, 3, 6, 3),
    Sketcher.Constraint("Vertical", 1, 3, 2, 3),
    Sketcher.Constraint("Vertical", 5, 3, 6, 3),
    Sketcher.Constraint("Diameter", 0, 7.0),
    Sketcher.Constraint("Diameter", 1, 3.4),
    Sketcher.Constraint("DistanceX", 4, 3, 0, 3, 58.0),
    Sketcher.Constraint("DistanceY", -1, 1, 0, 3, 4.6),
    Sketcher.Constraint("DistanceX", -1, 1, 0, 3, 73.25),
    Sketcher.Constraint("DistanceY", -1, 1, 2, 3, 27.65),
])
pad6 = body.newObject("PartDesign::Pad", "Pad005")
pad6.Profile = sketch6
pad6.Length = 2
pad6.Reversed = True
doc.recompute()

fillet = body.newObject("PartDesign::Fillet", "Fillet")
fillet.Base = (pad6, edges_at(pad6, [
    (78, 0, 3.25),
    (78, 42, 3.25),
    (0, 0, 3.25),
    (0, 42, 3.25),
]))
fillet.Radius = 2
doc.recompute()

fillet2 = body.newObject("PartDesign::Fillet", "Fillet001")
fillet2.Base = (fillet, edges_at(fillet, [(77, 1, -1.75)]))
fillet2.Radius = 1

doc.recompute()
